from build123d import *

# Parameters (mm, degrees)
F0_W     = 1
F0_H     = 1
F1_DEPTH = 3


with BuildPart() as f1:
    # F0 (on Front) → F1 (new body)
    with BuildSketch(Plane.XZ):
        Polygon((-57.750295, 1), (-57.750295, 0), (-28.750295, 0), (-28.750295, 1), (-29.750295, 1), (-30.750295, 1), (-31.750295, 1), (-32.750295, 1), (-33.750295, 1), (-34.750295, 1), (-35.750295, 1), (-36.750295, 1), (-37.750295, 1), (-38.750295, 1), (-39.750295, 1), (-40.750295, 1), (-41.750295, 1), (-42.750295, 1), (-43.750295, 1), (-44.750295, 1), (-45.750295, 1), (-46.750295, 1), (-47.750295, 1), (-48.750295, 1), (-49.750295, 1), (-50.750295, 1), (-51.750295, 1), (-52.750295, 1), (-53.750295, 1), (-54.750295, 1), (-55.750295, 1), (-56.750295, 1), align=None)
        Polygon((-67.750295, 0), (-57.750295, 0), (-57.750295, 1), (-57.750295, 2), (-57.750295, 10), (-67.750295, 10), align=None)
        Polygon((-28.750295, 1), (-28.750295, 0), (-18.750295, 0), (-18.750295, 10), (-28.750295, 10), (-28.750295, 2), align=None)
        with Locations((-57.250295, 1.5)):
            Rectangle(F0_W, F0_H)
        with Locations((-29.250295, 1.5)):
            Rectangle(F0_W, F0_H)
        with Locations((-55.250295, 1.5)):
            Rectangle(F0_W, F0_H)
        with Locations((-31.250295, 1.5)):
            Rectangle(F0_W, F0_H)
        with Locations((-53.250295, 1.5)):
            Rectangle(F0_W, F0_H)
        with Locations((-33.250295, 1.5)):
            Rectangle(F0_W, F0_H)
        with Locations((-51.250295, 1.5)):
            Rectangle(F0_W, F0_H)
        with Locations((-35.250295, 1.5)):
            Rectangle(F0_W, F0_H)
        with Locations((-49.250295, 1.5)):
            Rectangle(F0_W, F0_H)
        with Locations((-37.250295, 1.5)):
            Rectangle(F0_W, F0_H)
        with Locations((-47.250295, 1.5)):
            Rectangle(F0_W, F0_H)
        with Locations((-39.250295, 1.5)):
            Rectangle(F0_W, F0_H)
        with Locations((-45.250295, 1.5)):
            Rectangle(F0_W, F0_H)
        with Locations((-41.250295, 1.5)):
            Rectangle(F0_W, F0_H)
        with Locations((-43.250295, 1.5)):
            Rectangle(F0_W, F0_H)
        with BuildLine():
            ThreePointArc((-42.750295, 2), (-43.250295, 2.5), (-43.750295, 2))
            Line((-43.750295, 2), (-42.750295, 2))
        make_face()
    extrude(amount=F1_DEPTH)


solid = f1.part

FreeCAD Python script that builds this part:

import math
import FreeCAD as App
import Part
import Sketcher

doc = App.newDocument("Part")
body = doc.addObject("PartDesign::Body", "Body")

sketch1 = body.newObject("Sketcher::SketchObject", "Sketch")
sketch1.AttachmentSupport = (doc.getObject("XZ_Plane"), [""])
sketch1.MapMode = "FlatFace"
sketch1.addGeometry([
    Part.LineSegment(App.Vector(-29.8, 1, 0), App.Vector(-30.8, 1, 0)),
    Part.LineSegment(App.Vector(-30.8, 1, 0), App.Vector(-30.8, 2, 0)),
    Part.LineSegment(App.Vector(-30.8, 2, 0), App.Vector(-31.8, 2, 0)),
    Part.LineSegment(App.Vector(-31.8, 2, 0), App.Vector(-31.8, 1, 0)),
    Part.LineSegment(App.Vector(-31.8, 1, 0), App.Vector(-32.8, 1, 0)),
    Part.LineSegment(App.Vector(-32.8, 1, 0), App.Vector(-32.8, 2, 0)),
    Part.LineSegment(App.Vector(-32.8, 2, 0), App.Vector(-33.8, 2, 0)),
    Part.LineSegment(App.Vector(-33.8, 2, 0), App.Vector(-33.8, 1, 0)),
    Part.LineSegment(App.Vector(-33.8, 1, 0), App.Vector(-34.8, 1, 0)),
    Part.LineSegment(App.Vector(-34.8, 1, 0), App.Vector(-34.8, 2, 0)),
    Part.LineSegment(App.Vector(-34.8, 2, 0), App.Vector(-35.8, 2, 0)),
    Part.LineSegment(App.Vector(-35.8, 2, 0), App.Vector(-35.8, 1, 0)),
    Part.LineSegment(App.Vector(-35.8, 1, 0), App.Vector(-36.8, 1, 0)),
    Part.LineSegment(App.Vector(-36.8, 1, 0), App.Vector(-36.8, 2, 0)),
    Part.LineSegment(App.Vector(-36.8, 2, 0), App.Vector(-37.8, 2, 0)),
    Part.LineSegment(App.Vector(-37.8, 2, 0), App.Vector(-37.8, 1, 0)),
    Part.LineSegment(App.Vector(-37.8, 1, 0), App.Vector(-38.8, 1, 0)),
    Part.LineSegment(App.Vector(-38.8, 1, 0), App.Vector(-38.8, 2, 0)),
    Part.LineSegment(App.Vector(-38.8, 2, 0), App.Vector(-39.8, 2, 0)),
    Part.LineSegment(App.Vector(-39.8, 2, 0), App.Vector(-39.8, 1, 0)),
    Part.LineSegment(App.Vector(-39.8, 1, 0), App.Vector(-40.8, 1, 0)),
    Part.LineSegment(App.Vector(-40.8, 1, 0), App.Vector(-40.8, 2, 0)),
    Part.LineSegment(App.Vector(-40.8, 2, 0), App.Vector(-41.8, 2, 0)),
    Part.LineSegment(App.Vector(-41.8, 2, 0), App.Vector(-41.8, 1, 0)),
    Part.LineSegment(App.Vector(-41.8, 1, 0), App.Vector(-42.8, 1, 0)),
    Part.LineSegment(App.Vector(-42.8, 1, 0), App.Vector(-42.8, 2, 0)),
    Part.ArcOfCircle(Part.Circle(App.Vector(-43.3, 2, 0), App.Vector(0, 0, 1), 0.5), math.radians(0), math.radians(180)),
    Part.LineSegment(App.Vector(-43.8, 2, 0), App.Vector(-43.8, 1, 0)),
    Part.LineSegment(App.Vector(-43.8, 1, 0), App.Vector(-44.8, 1, 0)),
    Part.LineSegment(App.Vector(-44.8, 1, 0), App.Vector(-44.8, 2, 0)),
    Part.LineSegment(App.Vector(-44.8, 2, 0), App.Vector(-45.8, 2, 0)),
    Part.LineSegment(App.Vector(-45.8, 2, 0), App.Vector(-45.8, 1, 0)),
    Part.LineSegment(App.Vector(-45.8, 1, 0), App.Vector(-46.8, 1, 0)),
    Part.LineSegment(App.Vector(-46.8, 1, 0), App.Vector(-46.8, 2, 0)),
    Part.LineSegment(App.Vector(-46.8, 2, 0), App.Vector(-47.8, 2, 0)),
    Part.LineSegment(App.Vector(-47.8, 2, 0), App.Vector(-47.8, 1, 0)),
    Part.LineSegment(App.Vector(-47.8, 1, 0), App.Vector(-48.8, 1, 0)),
    Part.LineSegment(App.Vector(-48.8, 1, 0), App.Vector(-48.8, 2, 0)),
    Part.LineSegment(App.Vector(-48.8, 2, 0), App.Vector(-49.8, 2, 0)),
    Part.LineSegment(App.Vector(-49.8, 2, 0), App.Vector(-49.8, 1, 0)),
    Part.LineSegment(App.Vector(-49.8, 1, 0), App.Vector(-50.8, 1, 0)),
    Part.LineSegment(App.Vector(-50.8, 1, 0), App.Vector(-50.8, 2, 0)),
    Part.LineSegment(App.Vector(-50.8, 2, 0), App.Vector(-51.8, 2, 0)),
    Part.LineSegment(App.Vector(-51.8, 2, 0), App.Vector(-51.8, 1, 0)),
    Part.LineSegment(App.Vector(-51.8, 1, 0), App.Vector(-52.8, 1, 0)),
    Part.LineSegment(App.Vector(-52.8, 1, 0), App.Vector(-52.8, 2, 0)),
    Part.LineSegment(App.Vector(-52.8, 2, 0), App.Vector(-53.8, 2, 0)),
    Part.LineSegment(App.Vector(-53.8, 2, 0), App.Vector(-53.8, 1, 0)),
    Part.LineSegment(App.Vector(-53.8, 1, 0), App.Vector(-54.8, 1, 0)),
    Part.LineSegment(App.Vector(-54.8, 1, 0), App.Vector(-54.8, 2, 0)),
    Part.LineSegment(App.Vector(-54.8, 2, 0), App.Vector(-55.8, 2, 0)),
    Part.LineSegment(App.Vector(-55.8, 2, 0), App.Vector(-55.8, 1, 0)),
    Part.LineSegment(App.Vector(-55.8, 1, 0), App.Vector(-56.8, 1, 0)),
    Part.LineSegment(App.Vector(-56.8, 1, 0), App.Vector(-56.8, 2, 0)),
    Part.LineSegment(App.Vector(-56.8, 2, 0), App.Vector(-57.8, 2, 0)),
    Part.LineSegment(App.Vector(-57.8, 2, 0), App.Vector(-57.8, 10, 0)),
    Part.LineSegment(App.Vector(-57.8, 10, 0), App.Vector(-67.8, 10, 0)),
    Part.LineSegment(App.Vector(-67.8, 10, 0), App.Vector(-67.8, 0, 0)),
    Part.LineSegment(App.Vector(-67.8, 0, 0), App.Vector(-18.8, 0, 0)),
    Part.LineSegment(App.Vector(-18.8, 0, 0), App.Vector(-18.8, 10, 0)),
    Part.LineSegment(App.Vector(-18.8, 10, 0), App.Vector(-28.8, 10, 0)),
    Part.LineSegment(App.Vector(-28.8, 10, 0), App.Vector(-28.8, 2, 0)),
    Part.LineSegment(App.Vector(-28.8, 2, 0), App.Vector(-29.8, 2, 0)),
    Part.LineSegment(App.Vector(-29.8, 2, 0), App.Vector(-29.8, 1, 0)),
], False)
sketch1.addConstraint([
    Sketcher.Constraint("Coincident", 0, 2, 1, 1),
    Sketcher.Constraint("Coincident", 1, 2, 2, 1),
    Sketcher.Constraint("Coincident", 2, 2, 3, 1),
    Sketcher.Constraint("Coincident", 3, 2, 4, 1),
    Sketcher.Constraint("Coincident", 4, 2, 5, 1),
    Sketcher.Constraint("Coincident", 5, 2, 6, 1),
    Sketcher.Constraint("Coincident", 6, 2, 7, 1),
    Sketcher.Constraint("Coincident", 7, 2, 8, 1),
    Sketcher.Constraint("Coincident", 8, 2, 9, 1),
    Sketcher.Constraint("Coincident", 9, 2, 10, 1),
    Sketcher.Constraint("Coincident", 10, 2, 11, 1),
    Sketcher.Constraint("Coincident", 11, 2, 12, 1),
    Sketcher.Constraint("Coincident", 12, 2, 13, 1),
    Sketcher.Constraint("Coincident", 13, 2, 14, 1),
    Sketcher.Constraint("Coincident", 14, 2, 15, 1),
    Sketcher.Constraint("Coincident", 15, 2, 16, 1),
    Sketcher.Constraint("Coincident", 16, 2, 17, 1),
    Sketcher.Constraint("Coincident", 17, 2, 18, 1),
    Sketcher.Constraint("Coincident", 18, 2, 19, 1),
    Sketcher.Constraint("Coincident", 19, 2, 20, 1),
    Sketcher.Constraint("Coincident", 20, 2, 21, 1),
    Sketcher.Constraint("Coincident", 21, 2, 22, 1),
    Sketcher.Constraint("Coincident", 22, 2, 23, 1),
    Sketcher.Constraint("Coincident", 23, 2, 24, 1),
    Sketcher.Constraint("Coincident", 24, 2, 25, 1),
    Sketcher.Constraint("Tangent", 25, 2, 26, 1),
    Sketcher.Constraint("Tangent", 26, 2, 27, 1),
    Sketcher.Constraint("Coincident", 27, 2, 28, 1),
    Sketcher.Constraint("Coincident", 28, 2, 29, 1),
    Sketcher.Constraint("Coincident", 29, 2, 30, 1),
    Sketcher.Constraint("Coincident", 30, 2, 31, 1),
    Sketcher.Constraint("Coincident", 31, 2, 32, 1),
    Sketcher.Constraint("Coincident", 32, 2, 33, 1),
    Sketcher.Constraint("Coincident", 33, 2, 34, 1),
    Sketcher.Constraint("Coincident", 34, 2, 35, 1),
    Sketcher.Constraint("Coincident", 35, 2, 36, 1),
    Sketcher.Constraint("Coincident", 36, 2, 37, 1),
    Sketcher.Constraint("Coincident", 37, 2, 38, 1),
    Sketcher.Constraint("Coincident", 38, 2, 39, 1),
    Sketcher.Constraint("Coincident", 39, 2, 40, 1),
    Sketcher.Constraint("Coincident", 40, 2, 41, 1),
    Sketcher.Constraint("Coincident", 41, 2, 42, 1),
    Sketcher.Constraint("Coincident", 42, 2, 43, 1),
    Sketcher.Constraint("Coincident", 43, 2, 44, 1),
    Sketcher.Constraint("Coincident", 44, 2, 45, 1),
    Sketcher.Constraint("Coincident", 45, 2, 46, 1),
    Sketcher.Constraint("Coincident", 46, 2, 47, 1),
    Sketcher.Constraint("Coincident", 47, 2, 48, 1),
    Sketcher.Constraint("Coincident", 48, 2, 49, 1),
    Sketcher.Constraint("Coincident", 49, 2, 50, 1),
    Sketcher.Constraint("Coincident", 50, 2, 51, 1),
    Sketcher.Constraint("Coincident", 51, 2, 52, 1),
    Sketcher.Constraint("Coincident", 52, 2, 53, 1),
    Sketcher.Constraint("Coincident", 53, 2, 54, 1),
    Sketcher.Constraint("Coincident", 54, 2, 55, 1),
    Sketcher.Constraint("Coincident", 55, 2, 56, 1),
    Sketcher.Constraint("Coincident", 56, 2, 57, 1),
    Sketcher.Constraint("Coincident", 57, 2, 58, 1),
    Sketcher.Constraint("Coincident", 58, 2, 59, 1),
    Sketcher.Constraint("Coincident", 59, 2, 60, 1),
    Sketcher.Constraint("Coincident", 60, 2, 61, 1),
    Sketcher.Constraint("Coincident", 61, 2, 62, 1),
    Sketcher.Constraint("Coincident", 62, 2, 63, 1),
    Sketcher.Constraint("Coincident", 63, 2, 0, 1),
    Sketcher.Constraint("Horizontal", 0),
    Sketcher.Constraint("Vertical", 1),
    Sketcher.Constraint("Horizontal", 2),
    Sketcher.Constraint("Vertical", 3),
    Sketcher.Constraint("Horizontal", 4),
    Sketcher.Constraint("Vertical", 5),
    Sketcher.Constraint("Horizontal", 6),
    Sketcher.Constraint("Vertical", 7),
    Sketcher.Constraint("Horizontal", 8),
    Sketcher.Constraint("Vertical", 9),
    Sketcher.Constraint("Horizontal", 10),
    Sketcher.Constraint("Vertical", 11),
    Sketcher.Constraint("Horizontal", 12),
    Sketcher.Constraint("Vertical", 13),
    Sketcher.Constraint("Horizontal", 14),
    Sketcher.Constraint("Vertical", 15),
    Sketcher.Constraint("Horizontal", 16),
    Sketcher.Constraint("Vertical", 17),
    Sketcher.Constraint("Horizontal", 18),
    Sketcher.Constraint("Vertical", 19),
    Sketcher.Constraint("Horizontal", 20),
    Sketcher.Constraint("Vertical", 21),
    Sketcher.Constraint("Horizontal", 22),
    Sketcher.Constraint("Vertical", 23),
    Sketcher.Constraint("Horizontal", 24),
    Sketcher.Constraint("Vertical", 25),
    Sketcher.Constraint("Vertical", 27),
    Sketcher.Constraint("Horizontal", 28),
    Sketcher.Constraint("Vertical", 29),
    Sketcher.Constraint("Horizontal", 30),
    Sketcher.Constraint("Vertical", 31),
    Sketcher.Constraint("Horizontal", 32),
    Sketcher.Constraint("Vertical", 33),
    Sketcher.Constraint("Horizontal", 34),
    Sketcher.Constraint("Vertical", 35),
    Sketcher.Constraint("Horizontal", 36),
    Sketcher.Constraint("Vertical", 37),
    Sketcher.Constraint("Horizontal", 38),
    Sketcher.Constraint("Vertical", 39),
    Sketcher.Constraint("Horizontal", 40),
    Sketcher.Constraint("Vertical", 41),
    Sketcher.Constraint("Horizontal", 42),
    Sketcher.Constraint("Vertical", 43),
    Sketcher.Constraint("Horizontal", 44),
    Sketcher.Constraint("Vertical", 45),
    Sketcher.Constraint("Horizontal", 46),
    Sketcher.Constraint("Vertical", 47),
    Sketcher.Constraint("Horizontal", 48),
    Sketcher.Constraint("Vertical", 49),
    Sketcher.Constraint("Horizontal", 50),
    Sketcher.Constraint("Vertical", 51),
    Sketcher.Constraint("Horizontal", 52),
    Sketcher.Constraint("Vertical", 53),
    Sketcher.Constraint("Horizontal", 54),
    Sketcher.Constraint("Vertical", 55),
    Sketcher.Constraint("Horizontal", 56),
    Sketcher.Constraint("Vertical", 57),
    Sketcher.Constraint("Horizontal", 58),
    Sketcher.Constraint("Vertical", 59),
    Sketcher.Constraint("Horizontal", 60),
    Sketcher.Constraint("Vertical", 61),
    Sketcher.Constraint("Horizontal", 62),
    Sketcher.Constraint("Vertical", 63),
    Sketcher.Constraint("PointOnObject", 57, 2, -1),
    Sketcher.Constraint("Horizontal", 26, 3, 1, 2),
    Sketcher.Constraint("Horizontal", 0, 2, 3, 2),
    Sketcher.Constraint("Horizontal", 2, 2, 5, 2),
    Sketcher.Constraint("Horizontal", 4, 2, 7, 2),
    Sketcher.Constraint("Horizontal", 6, 2, 9, 2),
    Sketcher.Constraint("Horizontal", 8, 2, 11, 2),
    Sketcher.Constraint("Horizontal", 10, 2, 13, 2),
    Sketcher.Constraint("Horizontal", 12, 2, 15, 2),
    Sketcher.Constraint("Horizontal", 14, 2, 17, 2),
    Sketcher.Constraint("Horizontal", 16, 2, 19, 2),
    Sketcher.Constraint("Horizontal", 18, 2, 21, 2),
    Sketcher.Constraint("Horizontal", 20, 2, 23, 2),
    Sketcher.Constraint("Horizontal", 24, 2, 27, 2),
    Sketcher.Constraint("Horizontal", 26, 2, 29, 2),
    Sketcher.Constraint("Horizontal", 28, 2, 31, 2),
    Sketcher.Constraint("Horizontal", 30, 2, 33, 2),
    Sketcher.Constraint("Horizontal", 32, 2, 35, 2),
    Sketcher.Constraint("Horizontal", 34, 2, 37, 2),
    Sketcher.Constraint("Horizontal", 36, 2, 39, 2),
    Sketcher.Constraint("Horizontal", 38, 2, 41, 2),
    Sketcher.Constraint("Horizontal", 40, 2, 43, 2),
    Sketcher.Constraint("Horizontal", 42, 2, 45, 2),
    Sketcher.Constraint("Horizontal", 44, 2, 47, 2),
    Sketcher.Constraint("Horizontal", 46, 2, 49, 2),
    Sketcher.Constraint("Horizontal", 48, 2, 51, 2),
    Sketcher.Constraint("Horizontal", 50, 2, 53, 2),
    Sketcher.Constraint("Horizontal", 56, 2, 59, 2),
    Sketcher.Constraint("Horizontal", 54, 2, 61, 2),
    Sketcher.Constraint("Equal", 0, 2),
    Sketcher.Constraint("Equal", 2, 4),
    Sketcher.Constraint("Equal", 4, 6),
    Sketcher.Constraint("Equal", 6, 8),
    Sketcher.Constraint("Equal", 8, 10),
    Sketcher.Constraint("Equal", 10, 12),
    Sketcher.Constraint("Equal", 12, 14),
    Sketcher.Constraint("Equal", 14, 16),
    Sketcher.Constraint("Equal", 16, 18),
    Sketcher.Constraint("Equal", 18, 20),
    Sketcher.Constraint("Equal", 20, 22),
    Sketcher.Constraint("Equal", 22, 24),
    Sketcher.Constraint("Equal", 24, 28),
    Sketcher.Constraint("Equal", 28, 30),
    Sketcher.Constraint("Equal", 30, 32),
    Sketcher.Constraint("Equal", 32, 34),
    Sketcher.Constraint("Equal", 34, 36),
    Sketcher.Constraint("Equal", 36, 38),
    Sketcher.Constraint("Equal", 38, 40),
    Sketcher.Constraint("Equal", 40, 42),
    Sketcher.Constraint("Equal", 42, 44),
    Sketcher.Constraint("Equal", 44, 46),
    Sketcher.Constraint("Equal", 46, 48),
    Sketcher.Constraint("Equal", 48, 50),
    Sketcher.Constraint("Equal", 50, 52),
    Sketcher.Constraint("Equal", 52, 54),
    Sketcher.Constraint("Equal", 56, 60),
    Sketcher.Constraint("Equal", 54, 62),
    Sketcher.Constraint("Equal", 62, 1),
    Sketcher.Constraint("Equal", 60, 57),
    Sketcher.Constraint("Radius", 26, 0.5),
    Sketcher.Constraint("DistanceX", 0, 2, 0, 1, 1.0),
    Sketcher.Constraint("DistanceX", 56, 2, 56, 1, 10.0),
    Sketcher.Constraint("DistanceY", 55, 1, 55, 2, 8.0),
    Sketcher.Constraint("DistanceX", 26, 3, -1, 1, 43.250295),
])
pad1 = body.newObject("PartDesign::Pad", "Pad")
pad1.Profile = sketch1
pad1.Length = 3

doc.recompute()
